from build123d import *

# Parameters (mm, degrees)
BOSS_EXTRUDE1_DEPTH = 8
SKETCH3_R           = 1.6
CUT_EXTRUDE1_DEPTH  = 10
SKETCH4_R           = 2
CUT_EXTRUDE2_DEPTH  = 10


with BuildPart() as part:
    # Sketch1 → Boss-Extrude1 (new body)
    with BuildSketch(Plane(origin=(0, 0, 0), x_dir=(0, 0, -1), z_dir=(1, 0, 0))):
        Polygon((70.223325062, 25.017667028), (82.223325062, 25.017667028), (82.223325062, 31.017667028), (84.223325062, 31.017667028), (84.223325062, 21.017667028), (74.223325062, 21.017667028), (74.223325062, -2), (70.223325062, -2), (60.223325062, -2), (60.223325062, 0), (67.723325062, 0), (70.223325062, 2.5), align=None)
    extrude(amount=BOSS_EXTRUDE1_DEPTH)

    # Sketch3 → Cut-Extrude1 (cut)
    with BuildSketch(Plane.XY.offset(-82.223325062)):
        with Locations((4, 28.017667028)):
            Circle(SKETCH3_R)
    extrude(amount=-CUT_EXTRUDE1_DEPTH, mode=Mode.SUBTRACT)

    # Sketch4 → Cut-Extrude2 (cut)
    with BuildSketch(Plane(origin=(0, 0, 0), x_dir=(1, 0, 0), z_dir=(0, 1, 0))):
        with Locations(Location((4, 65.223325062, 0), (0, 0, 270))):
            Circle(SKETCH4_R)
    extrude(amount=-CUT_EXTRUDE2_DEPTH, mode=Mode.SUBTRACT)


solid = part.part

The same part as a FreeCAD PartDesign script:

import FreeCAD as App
import Part
import Sketcher
Q = App.Units.Quantity


def add_polygon(sketch, points):
    """Adds a closed chain of lines whose ends are joined by coincident constraints."""
    first, n = sketch.GeometryCount, len(points)
    for a, b in zip(points, points[1:] + points[:1]):
        sketch.addGeometry(Part.LineSegment(App.Vector(*a, 0), App.Vector(*b, 0)), False)
    for i in range(n):
        sketch.addConstraint(Sketcher.Constraint("Coincident", first + i, 2, first + (i + 1) % n, 1))

doc = App.newDocument("Part")
body = doc.addObject("PartDesign::Body", "Body")

# Sketch on YZ plane
sketch1 = doc.addObject("Sketcher::SketchObject", "Sketch")
body.addObject(sketch1)
sketch1.AttachmentSupport = (doc.YZ_Plane, [""])
sketch1.MapMode = "FlatFace"
add_polygon(sketch1, [(25, -82.2), (25, -70.2), (2.5, -70.2), (0, -67.7), (0, -60.2), (-2, -60.2), (-2, -74.2), (21, -74.2), (21, -84.2), (31, -84.2), (31, -82.2)])  # lines 0-10
sketch1.addConstraint(Sketcher.Constraint("Vertical", 0))
sketch1.addConstraint(Sketcher.Constraint("Horizontal", 1))
sketch1.addConstraint(Sketcher.Constraint("Vertical", 3))
sketch1.addConstraint(Sketcher.Constraint("Horizontal", 4))
sketch1.addConstraint(Sketcher.Constraint("Vertical", 5))
sketch1.addConstraint(Sketcher.Constraint("Horizontal", 6))
sketch1.addConstraint(Sketcher.Constraint("Vertical", 7))
sketch1.addConstraint(Sketcher.Constraint("Horizontal", 8))
sketch1.addConstraint(Sketcher.Constraint("Vertical", 9))
sketch1.addConstraint(Sketcher.Constraint("Horizontal", 10))
sketch1.addConstraint(Sketcher.Constraint("PointOnObject", 2, 2, -2))
sketch1.addConstraint(Sketcher.Constraint("Equal", 8, 7))
sketch1.addConstraint(Sketcher.Constraint("Equal", 4, 9))
sketch1.addConstraint(Sketcher.Constraint("DistanceX", 4, 2, 4, 1, 2.0))
sketch1.addConstraint(Sketcher.Constraint("DistanceX", 8, 1, 8, 2, 10.0))
sketch1.addConstraint(Sketcher.Constraint("DistanceX", 10, 2, 10, 1, 6.0))
sketch1.addConstraint(Sketcher.Constraint("DistanceY", 0, 1, 0, 2, 12.0))
sketch1.addConstraint(Sketcher.Constraint("DistanceY", 5, 2, 5, 1, 14.0))
sketch1.addConstraint(Sketcher.Constraint("Angle", 2, Q("135 deg")))
sketch1.addConstraint(Sketcher.Constraint("DistanceY", 3, 1, 3, 2, 7.5))
sketch1.addConstraint(Sketcher.Constraint("DistanceX", 1, 2, 1, 1, 22.517667))
sketch1.addConstraint(Sketcher.Constraint("DistanceY", 0, 2, -1, 1, 70.223325))
pad1 = doc.addObject("PartDesign::Pad", "Pad")
body.addObject(pad1)
pad1.Profile = sketch1
pad1.Length = 8

# Sketch on XY plane
sketch2 = doc.addObject("Sketcher::SketchObject", "Sketch001")
body.addObject(sketch2)
sketch2.AttachmentSupport = (doc.XY_Plane, [""])
sketch2.MapMode = "FlatFace"
sketch2.AttachmentOffset = App.Placement(App.Vector(0, 0, -82.223325), App.Rotation())
sketch2.addGeometry(Part.Circle(App.Vector(4, 28, 0), App.Vector(0, 0, 1), 1.6), False)
sketch2.addConstraint(Sketcher.Constraint("Diameter", 0, 3.2))
sketch2.addConstraint(Sketcher.Constraint("DistanceX", -1, 1, 0, 3, 4.0))
sketch2.addConstraint(Sketcher.Constraint("DistanceY", -1, 1, 0, 3, 28.017667))
pocket1 = doc.addObject("PartDesign::Pocket", "Pocket")
body.addObject(pocket1)
pocket1.Profile = sketch2
pocket1.Length = 10

# Sketch on XZ plane
sketch3 = doc.addObject("Sketcher::SketchObject", "Sketch002")
body.addObject(sketch3)
sketch3.AttachmentSupport = (doc.XZ_Plane, [""])
sketch3.MapMode = "FlatFace"
sketch3.addGeometry(Part.Circle(App.Vector(4, -65.2, 0), App.Vector(0, 0, 1), 2), False)
sketch3.addConstraint(Sketcher.Constraint("Diameter", 0, 4.0))
sketch3.addConstraint(Sketcher.Constraint("DistanceX", -1, 1, 0, 3, 4.0))
sketch3.addConstraint(Sketcher.Constraint("DistanceY", 0, 3, -1, 1, 65.223325))
pocket2 = doc.addObject("PartDesign::Pocket", "Pocket001")
body.addObject(pocket2)
pocket2.Profile = sketch3
pocket2.Length = 10
pocket2.Reversed = True

doc.recompute()
